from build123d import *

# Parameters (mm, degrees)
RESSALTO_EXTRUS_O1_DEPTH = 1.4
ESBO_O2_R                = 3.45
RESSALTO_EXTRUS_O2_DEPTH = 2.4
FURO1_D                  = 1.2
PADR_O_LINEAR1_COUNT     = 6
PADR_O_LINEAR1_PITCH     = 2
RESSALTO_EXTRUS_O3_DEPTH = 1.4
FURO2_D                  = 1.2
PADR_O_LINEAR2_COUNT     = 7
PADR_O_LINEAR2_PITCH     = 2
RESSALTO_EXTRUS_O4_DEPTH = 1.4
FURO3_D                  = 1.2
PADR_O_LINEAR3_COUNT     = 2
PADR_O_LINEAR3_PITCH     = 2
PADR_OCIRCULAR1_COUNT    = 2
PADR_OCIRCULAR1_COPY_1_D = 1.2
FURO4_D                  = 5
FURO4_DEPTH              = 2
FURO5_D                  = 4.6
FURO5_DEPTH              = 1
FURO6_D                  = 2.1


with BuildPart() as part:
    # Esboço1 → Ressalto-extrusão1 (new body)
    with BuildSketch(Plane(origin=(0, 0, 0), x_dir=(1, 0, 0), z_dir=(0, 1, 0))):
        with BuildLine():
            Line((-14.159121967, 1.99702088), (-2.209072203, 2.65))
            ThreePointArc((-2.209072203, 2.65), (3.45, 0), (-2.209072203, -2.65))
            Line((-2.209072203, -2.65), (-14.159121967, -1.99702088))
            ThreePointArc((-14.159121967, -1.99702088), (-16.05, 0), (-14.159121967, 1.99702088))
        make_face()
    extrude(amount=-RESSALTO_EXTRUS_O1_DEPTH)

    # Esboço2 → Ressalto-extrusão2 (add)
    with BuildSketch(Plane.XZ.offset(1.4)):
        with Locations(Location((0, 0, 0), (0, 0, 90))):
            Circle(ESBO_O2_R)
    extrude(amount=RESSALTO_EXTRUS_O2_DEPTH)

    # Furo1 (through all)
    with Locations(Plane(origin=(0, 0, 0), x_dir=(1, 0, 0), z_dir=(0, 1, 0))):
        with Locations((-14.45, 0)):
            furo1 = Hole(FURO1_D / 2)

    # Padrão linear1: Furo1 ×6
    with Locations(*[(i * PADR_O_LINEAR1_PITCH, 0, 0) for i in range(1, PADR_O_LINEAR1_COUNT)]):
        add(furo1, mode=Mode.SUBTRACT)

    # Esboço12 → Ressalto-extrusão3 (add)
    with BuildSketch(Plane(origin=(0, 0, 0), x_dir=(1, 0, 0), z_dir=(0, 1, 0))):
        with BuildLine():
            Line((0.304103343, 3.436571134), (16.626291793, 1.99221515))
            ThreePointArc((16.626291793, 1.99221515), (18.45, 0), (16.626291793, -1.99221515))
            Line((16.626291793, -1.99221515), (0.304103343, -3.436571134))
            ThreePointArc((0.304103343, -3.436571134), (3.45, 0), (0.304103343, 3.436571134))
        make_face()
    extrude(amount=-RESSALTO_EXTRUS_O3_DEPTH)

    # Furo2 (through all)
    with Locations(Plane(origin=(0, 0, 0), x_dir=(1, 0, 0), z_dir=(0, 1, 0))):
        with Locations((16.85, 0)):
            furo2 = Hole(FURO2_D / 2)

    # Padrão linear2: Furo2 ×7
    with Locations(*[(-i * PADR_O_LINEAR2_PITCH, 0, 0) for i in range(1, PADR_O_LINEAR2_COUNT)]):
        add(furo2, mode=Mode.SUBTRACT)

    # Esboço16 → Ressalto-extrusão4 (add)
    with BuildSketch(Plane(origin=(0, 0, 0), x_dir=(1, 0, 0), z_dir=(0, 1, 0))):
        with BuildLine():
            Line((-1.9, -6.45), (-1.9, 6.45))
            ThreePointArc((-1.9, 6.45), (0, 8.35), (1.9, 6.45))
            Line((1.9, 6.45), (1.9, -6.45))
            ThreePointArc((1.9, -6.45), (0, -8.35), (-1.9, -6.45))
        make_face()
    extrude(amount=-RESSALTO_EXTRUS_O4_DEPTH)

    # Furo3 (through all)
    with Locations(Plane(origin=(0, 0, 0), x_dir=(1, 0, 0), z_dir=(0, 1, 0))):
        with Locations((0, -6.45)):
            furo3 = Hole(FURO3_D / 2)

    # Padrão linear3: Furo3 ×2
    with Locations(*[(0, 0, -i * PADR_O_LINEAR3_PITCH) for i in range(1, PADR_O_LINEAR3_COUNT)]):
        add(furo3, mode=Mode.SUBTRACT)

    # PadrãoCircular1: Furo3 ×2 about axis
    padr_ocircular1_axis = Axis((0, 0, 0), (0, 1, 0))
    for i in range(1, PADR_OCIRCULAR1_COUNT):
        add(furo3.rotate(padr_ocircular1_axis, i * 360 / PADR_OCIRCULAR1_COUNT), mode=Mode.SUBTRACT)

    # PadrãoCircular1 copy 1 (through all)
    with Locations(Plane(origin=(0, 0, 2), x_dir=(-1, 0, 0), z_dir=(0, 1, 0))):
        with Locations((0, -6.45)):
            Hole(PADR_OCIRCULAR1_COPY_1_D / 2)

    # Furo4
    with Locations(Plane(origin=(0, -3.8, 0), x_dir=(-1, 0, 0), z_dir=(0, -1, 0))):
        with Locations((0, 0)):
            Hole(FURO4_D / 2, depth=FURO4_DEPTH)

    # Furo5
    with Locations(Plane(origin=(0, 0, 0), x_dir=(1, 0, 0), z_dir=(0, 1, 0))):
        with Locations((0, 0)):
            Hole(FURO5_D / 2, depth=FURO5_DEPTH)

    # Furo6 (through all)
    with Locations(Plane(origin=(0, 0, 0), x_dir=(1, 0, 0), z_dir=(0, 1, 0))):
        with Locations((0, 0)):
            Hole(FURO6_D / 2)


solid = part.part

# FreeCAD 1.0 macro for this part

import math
import FreeCAD as App
import Part
import Sketcher
from FreeCAD import Vector
Q = App.Units.Quantity

doc = App.newDocument("Part")
params = doc.addObject("Spreadsheet::Sheet", "Params")
for row, (alias, value) in enumerate([
    ("sketch1_radius", "2 mm"),
    ("sketch1_radius2", "3.45 mm"),
    ("pad1_length", "1.4 mm"),
    ("sketch2_diameter", "6.9 mm"),
    ("pad2_length", "2.4 mm"),
    ("sketch3_diameter", "1.2 mm"),
    ("hole_diameter", "1.2 mm"),
    ("linearpattern_pitch", "2 mm"),
    ("sketch4_radius", "2 mm"),
    ("sketch4_radius2", "3.45 mm"),
    ("pad3_length", "1.4 mm"),
    ("sketch5_diameter", "1.2 mm"),
    ("hole2_diameter", "1.2 mm"),
    ("linearpattern2_pitch", "2 mm"),
    ("sketch6_radius", "1.9 mm"),
    ("sketch6_height", "12.9 mm"),
    ("pad4_length", "1.4 mm"),
    ("sketch7_diameter", "1.2 mm"),
    ("hole3_diameter", "1.2 mm"),
    ("linearpattern3_pitch", "2 mm"),
    ("sketch8_diameter", "1.2 mm"),
    ("hole4_diameter", "1.2 mm"),
    ("sketch9_diameter", "5 mm"),
    ("hole5_diameter", "5 mm"),
    ("hole5_depth", "2 mm"),
    ("sketch10_diameter", "4.6 mm"),
    ("hole6_diameter", "4.6 mm"),
    ("hole6_depth", "1 mm"),
    ("sketch11_diameter", "2.1 mm"),
    ("hole7_diameter", "2.1 mm"),
], start=1):
    params.set(f"A{row}", alias)
    params.set(f"B{row}", "=" + value)
    params.setAlias(f"B{row}", alias)

body = doc.addObject("PartDesign::Body", "Body")

# Sketch on XZ plane
sketch1 = body.newObject("Sketcher::SketchObject", "Sketch")
sketch1.AttachmentSupport = (doc.getObject("XZ_Plane"), [""])
sketch1.MapMode = "FlatFace"
sketch1.addGeometry(Part.LineSegment(Vector(-2.2, -2.6, 0), Vector(-14.2, -2, 0)), False)
sketch1.addGeometry(Part.ArcOfCircle(Part.Circle(Vector(-14.1, 0, 0), Vector(0, 0, 1), 2), math.radians(93), math.radians(267)), False)
sketch1.addGeometry(Part.LineSegment(Vector(-14.2, 2, 0), Vector(-2.2, 2.6, 0)), False)
sketch1.addGeometry(Part.ArcOfCircle(Part.Circle(Vector(0, 0, 0), Vector(0, 0, 1), 3.5), math.radians(-130), math.radians(130)), False)
sketch1.addConstraint(Sketcher.Constraint("Tangent", 0, 2, 1, 2))
sketch1.addConstraint(Sketcher.Constraint("Tangent", 1, 1, 2, 1))
sketch1.addConstraint(Sketcher.Constraint("Coincident", 2, 2, 3, 2))
sketch1.addConstraint(Sketcher.Constraint("Coincident", 3, 1, 0, 1))
sketch1.addConstraint(Sketcher.Constraint("Coincident", 3, 3, -1, 1))
sketch1.addConstraint(Sketcher.Constraint("Symmetric", 0, 2, 1, 1, -1))
sketch1.addConstraint(Sketcher.Constraint("Radius", 1, Q("2 mm")))
sketch1.addConstraint(Sketcher.Constraint("Radius", 3, Q("3.45 mm")))
sketch1.addConstraint(Sketcher.Constraint("DistanceY", 3, 1, 2, 2, Q("5.3 mm")))
sketch1.addConstraint(Sketcher.Constraint("DistanceX", 1, 3, -1, 1, Q("14.05 mm")))
sketch1.setExpression("Constraints[6]", "Params.sketch1_radius")
sketch1.setExpression("Constraints[7]", "Params.sketch1_radius2")
pad1 = body.newObject("PartDesign::Pad", "Pad")
pad1.Profile = sketch1
pad1.setExpression("Length", "Params.pad1_length")

# Sketch on XZ plane
sketch2 = body.newObject("Sketcher::SketchObject", "Sketch001")
sketch2.AttachmentSupport = (doc.getObject("XZ_Plane"), [""])
sketch2.MapMode = "FlatFace"
sketch2.AttachmentOffset = App.Placement(Vector(0, 0, 1.4), App.Rotation())
sketch2.addGeometry(Part.Circle(Vector(0, 0, 0), Vector(0, 0, 1), 3.5), False)
sketch2.addConstraint(Sketcher.Constraint("Coincident", 0, 3, -1, 1))
sketch2.addConstraint(Sketcher.Constraint("Diameter", 0, Q("6.9 mm")))
sketch2.setExpression("Constraints[1]", "Params.sketch2_diameter")
pad2 = body.newObject("PartDesign::Pad", "Pad001")
pad2.Profile = sketch2
pad2.setExpression("Length", "Params.pad2_length")

# Sketch on XZ plane
sketch3 = body.newObject("Sketcher::SketchObject", "Sketch002")
sketch3.AttachmentSupport = (doc.getObject("XZ_Plane"), [""])
sketch3.MapMode = "FlatFace"
sketch3.addGeometry(Part.Circle(Vector(-14.4, 0, 0), Vector(0, 0, 1), 0.6), False)
sketch3.addConstraint(Sketcher.Constraint("PointOnObject", 0, 3, -1))
sketch3.addConstraint(Sketcher.Constraint("Diameter", 0, Q("1.2 mm")))
sketch3.addConstraint(Sketcher.Constraint("DistanceX", 0, 3, -1, 1, Q("14.45 mm")))
sketch3.setExpression("Constraints[1]", "Params.sketch3_diameter")
doc.recompute()
hole = body.newObject("PartDesign::Hole", "Hole")
hole.Profile = sketch3
hole.ThreadType = "None"
hole.setExpression("Diameter", "Params.hole_diameter")
hole.DepthType = "ThroughAll"
hole.Reversed = True
doc.recompute()

linearpattern = body.newObject("PartDesign::LinearPattern", "LinearPattern")
linearpattern.Originals = [hole]
linearpattern.Direction = (doc.getObject("X_Axis"), [""])
linearpattern.Mode = "offset"
linearpattern.setExpression("Offset", "Params.linearpattern_pitch")
linearpattern.Occurrences = 6
body.Tip = linearpattern

# Sketch on XZ plane
sketch4 = body.newObject("Sketcher::SketchObject", "Sketch003")
sketch4.AttachmentSupport = (doc.getObject("XZ_Plane"), [""])
sketch4.MapMode = "FlatFace"
sketch4.addGeometry(Part.LineSegment(Vector(16.6, -2, 0), Vector(0.3, -3.4, 0)), False)
sketch4.addGeometry(Part.ArcOfCircle(Part.Circle(Vector(0, 0, 0), Vector(0, 0, 1), 3.5), math.radians(-85), math.radians(85)), False)
sketch4.addGeometry(Part.LineSegment(Vector(0.3, 3.4, 0), Vector(16.6, 2, 0)), False)
sketch4.addGeometry(Part.ArcOfCircle(Part.Circle(Vector(16.4, 0, 0), Vector(0, 0, 1), 2), math.radians(-85), math.radians(85)), False)
sketch4.addConstraint(Sketcher.Constraint("Tangent", 0, 2, 1, 1))
sketch4.addConstraint(Sketcher.Constraint("Tangent", 1, 2, 2, 1))
sketch4.addConstraint(Sketcher.Constraint("Tangent", 2, 2, 3, 2))
sketch4.addConstraint(Sketcher.Constraint("Tangent", 3, 1, 0, 1))
sketch4.addConstraint(Sketcher.Constraint("Coincident", 1, 3, -1, 1))
sketch4.addConstraint(Sketcher.Constraint("PointOnObject", 3, 3, -1))
sketch4.addConstraint(Sketcher.Constraint("Radius", 3, Q("2 mm")))
sketch4.addConstraint(Sketcher.Constraint("Radius", 1, Q("3.45 mm")))
sketch4.addConstraint(Sketcher.Constraint("DistanceX", -1, 1, 3, 3, Q("16.45 mm")))
sketch4.setExpression("Constraints[6]", "Params.sketch4_radius")
sketch4.setExpression("Constraints[7]", "Params.sketch4_radius2")
pad3 = body.newObject("PartDesign::Pad", "Pad002")
pad3.Profile = sketch4
pad3.setExpression("Length", "Params.pad3_length")

# Sketch on XZ plane
sketch5 = body.newObject("Sketcher::SketchObject", "Sketch004")
sketch5.AttachmentSupport = (doc.getObject("XZ_Plane"), [""])
sketch5.MapMode = "FlatFace"
sketch5.addGeometry(Part.Circle(Vector(16.9, 0, 0), Vector(0, 0, 1), 0.6), False)
sketch5.addConstraint(Sketcher.Constraint("PointOnObject", 0, 3, -1))
sketch5.addConstraint(Sketcher.Constraint("Diameter", 0, Q("1.2 mm")))
sketch5.addConstraint(Sketcher.Constraint("DistanceX", -1, 1, 0, 3, Q("16.85 mm")))
sketch5.setExpression("Constraints[1]", "Params.sketch5_diameter")
doc.recompute()
hole2 = body.newObject("PartDesign::Hole", "Hole001")
hole2.Profile = sketch5
hole2.ThreadType = "None"
hole2.setExpression("Diameter", "Params.hole2_diameter")
hole2.DepthType = "ThroughAll"
hole2.Reversed = True
doc.recompute()

linearpattern2 = body.newObject("PartDesign::LinearPattern", "LinearPattern001")
linearpattern2.Originals = [hole2]
linearpattern2.Direction = (doc.getObject("X_Axis"), [""])
linearpattern2.Mode = "offset"
linearpattern2.setExpression("Offset", "Params.linearpattern2_pitch")
linearpattern2.Occurrences = 7
linearpattern2.Reversed = True
body.Tip = linearpattern2

# Sketch on XZ plane
sketch6 = body.newObject("Sketcher::SketchObject", "Sketch005")
sketch6.AttachmentSupport = (doc.getObject("XZ_Plane"), [""])
sketch6.MapMode = "FlatFace"
sketch6.addGeometry(Part.LineSegment(Vector(-1.9, -6.5, 0), Vector(-1.9, 6.5, 0)), False)
sketch6.addGeometry(Part.ArcOfCircle(Part.Circle(Vector(0, 6.5, 0), Vector(0, 0, 1), 1.9), math.radians(0), math.radians(180)), False)
sketch6.addGeometry(Part.LineSegment(Vector(1.9, 6.5, 0), Vector(1.9, -6.5, 0)), False)
sketch6.addGeometry(Part.ArcOfCircle(Part.Circle(Vector(0, -6.5, 0), Vector(0, 0, 1), 1.9), math.radians(180), math.radians(360)), False)
sketch6.addConstraint(Sketcher.Constraint("Tangent", 0, 2, 1, 2))
sketch6.addConstraint(Sketcher.Constraint("Tangent", 1, 1, 2, 1))
sketch6.addConstraint(Sketcher.Constraint("Tangent", 2, 2, 3, 2))
sketch6.addConstraint(Sketcher.Constraint("Tangent", 3, 1, 0, 1))
sketch6.addConstraint(Sketcher.Constraint("Vertical", 0))
sketch6.addConstraint(Sketcher.Constraint("Vertical", 2))
sketch6.addConstraint(Sketcher.Constraint("Symmetric", 1, 3, 3, 3, -1, 1))
sketch6.addConstraint(Sketcher.Constraint("Radius", 1, Q("1.9 mm")))
sketch6.addConstraint(Sketcher.Constraint("DistanceY", 0, 1, 0, 2, Q("12.9 mm")))
sketch6.setExpression("Constraints[7]", "Params.sketch6_radius")
sketch6.setExpression("Constraints[8]", "Params.sketch6_height")
pad4 = body.newObject("PartDesign::Pad", "Pad003")
pad4.Profile = sketch6
pad4.setExpression("Length", "Params.pad4_length")

# Sketch on XZ plane
sketch7 = body.newObject("Sketcher::SketchObject", "Sketch006")
sketch7.AttachmentSupport = (doc.getObject("XZ_Plane"), [""])
sketch7.MapMode = "FlatFace"
sketch7.addGeometry(Part.Circle(Vector(0, 6.5, 0), Vector(0, 0, 1), 0.6), False)
sketch7.addConstraint(Sketcher.Constraint("PointOnObject", 0, 3, -2))
sketch7.addConstraint(Sketcher.Constraint("Diameter", 0, Q("1.2 mm")))
sketch7.addConstraint(Sketcher.Constraint("DistanceY", -1, 1, 0, 3, Q("6.45 mm")))
sketch7.setExpression("Constraints[1]", "Params.sketch7_diameter")
doc.recompute()
hole3 = body.newObject("PartDesign::Hole", "Hole002")
hole3.Profile = sketch7
hole3.ThreadType = "None"
hole3.setExpression("Diameter", "Params.hole3_diameter")
hole3.DepthType = "ThroughAll"
hole3.Reversed = True
doc.recompute()

linearpattern3 = body.newObject("PartDesign::LinearPattern", "LinearPattern002")
linearpattern3.Originals = [hole3]
linearpattern3.Direction = (doc.getObject("Z_Axis"), [""])
linearpattern3.Mode = "offset"
linearpattern3.setExpression("Offset", "Params.linearpattern3_pitch")
linearpattern3.Occurrences = 2
linearpattern3.Reversed = True
body.Tip = linearpattern3
doc.recompute()

polarpattern = body.newObject("PartDesign::PolarPattern", "PolarPattern")
polarpattern.Originals = [hole3]
polarpattern.Axis = (doc.getObject("Y_Axis"), [""])
polarpattern.Angle = 360
polarpattern.Occurrences = 2
body.Tip = polarpattern

# Sketch on XZ plane
sketch8 = body.newObject("Sketcher::SketchObject", "Sketch007")
sketch8.AttachmentSupport = (doc.getObject("XZ_Plane"), [""])
sketch8.MapMode = "FlatFace"
sketch8.addGeometry(Part.Circle(Vector(0, -4.5, 0), Vector(0, 0, 1), 0.6), False)
sketch8.addConstraint(Sketcher.Constraint("PointOnObject", 0, 3, -2))
sketch8.addConstraint(Sketcher.Constraint("Diameter", 0, Q("1.2 mm")))
sketch8.addConstraint(Sketcher.Constraint("DistanceY", 0, 3, -1, 1, Q("4.45 mm")))
sketch8.setExpression("Constraints[1]", "Params.sketch8_diameter")
doc.recompute()
hole4 = body.newObject("PartDesign::Hole", "Hole003")
hole4.Profile = sketch8
hole4.ThreadType = "None"
hole4.setExpression("Diameter", "Params.hole4_diameter")
hole4.DepthType = "ThroughAll"
hole4.Reversed = True

# Sketch on XZ plane
sketch9 = body.newObject("Sketcher::SketchObject", "Sketch008")
sketch9.AttachmentSupport = (doc.getObject("XZ_Plane"), [""])
sketch9.MapMode = "FlatFace"
sketch9.AttachmentOffset = App.Placement(Vector(0, 0, 3.8), App.Rotation())
sketch9.addGeometry(Part.Circle(Vector(0, 0, 0), Vector(0, 0, 1), 2.5), False)
sketch9.addConstraint(Sketcher.Constraint("Coincident", 0, 3, -1, 1))
sketch9.addConstraint(Sketcher.Constraint("Diameter", 0, Q("5 mm")))
sketch9.setExpression("Constraints[1]", "Params.sketch9_diameter")
doc.recompute()
hole5 = body.newObject("PartDesign::Hole", "Hole004")
hole5.Profile = sketch9
hole5.ThreadType = "None"
hole5.setExpression("Diameter", "Params.hole5_diameter")
hole5.DepthType = "Dimension"
hole5.setExpression("Depth", "Params.hole5_depth")
hole5.DrillPoint = "Flat"

# Sketch on XZ plane
sketch10 = body.newObject("Sketcher::SketchObject", "Sketch009")
sketch10.AttachmentSupport = (doc.getObject("XZ_Plane"), [""])
sketch10.MapMode = "FlatFace"
sketch10.addGeometry(Part.Circle(Vector(0, 0, 0), Vector(0, 0, 1), 2.3), False)
sketch10.addConstraint(Sketcher.Constraint("Coincident", 0, 3, -1, 1))
sketch10.addConstraint(Sketcher.Constraint("Diameter", 0, Q("4.6 mm")))
sketch10.setExpression("Constraints[1]", "Params.sketch10_diameter")
doc.recompute()
hole6 = body.newObject("PartDesign::Hole", "Hole005")
hole6.Profile = sketch10
hole6.ThreadType = "None"
hole6.setExpression("Diameter", "Params.hole6_diameter")
hole6.DepthType = "Dimension"
hole6.setExpression("Depth", "Params.hole6_depth")
hole6.DrillPoint = "Flat"
hole6.Reversed = True

# Sketch on XZ plane
sketch11 = body.newObject("Sketcher::SketchObject", "Sketch010")
sketch11.AttachmentSupport = (doc.getObject("XZ_Plane"), [""])
sketch11.MapMode = "FlatFace"
sketch11.addGeometry(Part.Circle(Vector(0, 0, 0), Vector(0, 0, 1), 1.1), False)
sketch11.addConstraint(Sketcher.Constraint("Coincident", 0, 3, -1, 1))
sketch11.addConstraint(Sketcher.Constraint("Diameter", 0, Q("2.1 mm")))
sketch11.setExpression("Constraints[1]", "Params.sketch11_diameter")
doc.recompute()
hole7 = body.newObject("PartDesign::Hole", "Hole006")
hole7.Profile = sketch11
hole7.ThreadType = "None"
hole7.setExpression("Diameter", "Params.hole7_diameter")
hole7.DepthType = "ThroughAll"
hole7.Reversed = True

doc.recompute()
